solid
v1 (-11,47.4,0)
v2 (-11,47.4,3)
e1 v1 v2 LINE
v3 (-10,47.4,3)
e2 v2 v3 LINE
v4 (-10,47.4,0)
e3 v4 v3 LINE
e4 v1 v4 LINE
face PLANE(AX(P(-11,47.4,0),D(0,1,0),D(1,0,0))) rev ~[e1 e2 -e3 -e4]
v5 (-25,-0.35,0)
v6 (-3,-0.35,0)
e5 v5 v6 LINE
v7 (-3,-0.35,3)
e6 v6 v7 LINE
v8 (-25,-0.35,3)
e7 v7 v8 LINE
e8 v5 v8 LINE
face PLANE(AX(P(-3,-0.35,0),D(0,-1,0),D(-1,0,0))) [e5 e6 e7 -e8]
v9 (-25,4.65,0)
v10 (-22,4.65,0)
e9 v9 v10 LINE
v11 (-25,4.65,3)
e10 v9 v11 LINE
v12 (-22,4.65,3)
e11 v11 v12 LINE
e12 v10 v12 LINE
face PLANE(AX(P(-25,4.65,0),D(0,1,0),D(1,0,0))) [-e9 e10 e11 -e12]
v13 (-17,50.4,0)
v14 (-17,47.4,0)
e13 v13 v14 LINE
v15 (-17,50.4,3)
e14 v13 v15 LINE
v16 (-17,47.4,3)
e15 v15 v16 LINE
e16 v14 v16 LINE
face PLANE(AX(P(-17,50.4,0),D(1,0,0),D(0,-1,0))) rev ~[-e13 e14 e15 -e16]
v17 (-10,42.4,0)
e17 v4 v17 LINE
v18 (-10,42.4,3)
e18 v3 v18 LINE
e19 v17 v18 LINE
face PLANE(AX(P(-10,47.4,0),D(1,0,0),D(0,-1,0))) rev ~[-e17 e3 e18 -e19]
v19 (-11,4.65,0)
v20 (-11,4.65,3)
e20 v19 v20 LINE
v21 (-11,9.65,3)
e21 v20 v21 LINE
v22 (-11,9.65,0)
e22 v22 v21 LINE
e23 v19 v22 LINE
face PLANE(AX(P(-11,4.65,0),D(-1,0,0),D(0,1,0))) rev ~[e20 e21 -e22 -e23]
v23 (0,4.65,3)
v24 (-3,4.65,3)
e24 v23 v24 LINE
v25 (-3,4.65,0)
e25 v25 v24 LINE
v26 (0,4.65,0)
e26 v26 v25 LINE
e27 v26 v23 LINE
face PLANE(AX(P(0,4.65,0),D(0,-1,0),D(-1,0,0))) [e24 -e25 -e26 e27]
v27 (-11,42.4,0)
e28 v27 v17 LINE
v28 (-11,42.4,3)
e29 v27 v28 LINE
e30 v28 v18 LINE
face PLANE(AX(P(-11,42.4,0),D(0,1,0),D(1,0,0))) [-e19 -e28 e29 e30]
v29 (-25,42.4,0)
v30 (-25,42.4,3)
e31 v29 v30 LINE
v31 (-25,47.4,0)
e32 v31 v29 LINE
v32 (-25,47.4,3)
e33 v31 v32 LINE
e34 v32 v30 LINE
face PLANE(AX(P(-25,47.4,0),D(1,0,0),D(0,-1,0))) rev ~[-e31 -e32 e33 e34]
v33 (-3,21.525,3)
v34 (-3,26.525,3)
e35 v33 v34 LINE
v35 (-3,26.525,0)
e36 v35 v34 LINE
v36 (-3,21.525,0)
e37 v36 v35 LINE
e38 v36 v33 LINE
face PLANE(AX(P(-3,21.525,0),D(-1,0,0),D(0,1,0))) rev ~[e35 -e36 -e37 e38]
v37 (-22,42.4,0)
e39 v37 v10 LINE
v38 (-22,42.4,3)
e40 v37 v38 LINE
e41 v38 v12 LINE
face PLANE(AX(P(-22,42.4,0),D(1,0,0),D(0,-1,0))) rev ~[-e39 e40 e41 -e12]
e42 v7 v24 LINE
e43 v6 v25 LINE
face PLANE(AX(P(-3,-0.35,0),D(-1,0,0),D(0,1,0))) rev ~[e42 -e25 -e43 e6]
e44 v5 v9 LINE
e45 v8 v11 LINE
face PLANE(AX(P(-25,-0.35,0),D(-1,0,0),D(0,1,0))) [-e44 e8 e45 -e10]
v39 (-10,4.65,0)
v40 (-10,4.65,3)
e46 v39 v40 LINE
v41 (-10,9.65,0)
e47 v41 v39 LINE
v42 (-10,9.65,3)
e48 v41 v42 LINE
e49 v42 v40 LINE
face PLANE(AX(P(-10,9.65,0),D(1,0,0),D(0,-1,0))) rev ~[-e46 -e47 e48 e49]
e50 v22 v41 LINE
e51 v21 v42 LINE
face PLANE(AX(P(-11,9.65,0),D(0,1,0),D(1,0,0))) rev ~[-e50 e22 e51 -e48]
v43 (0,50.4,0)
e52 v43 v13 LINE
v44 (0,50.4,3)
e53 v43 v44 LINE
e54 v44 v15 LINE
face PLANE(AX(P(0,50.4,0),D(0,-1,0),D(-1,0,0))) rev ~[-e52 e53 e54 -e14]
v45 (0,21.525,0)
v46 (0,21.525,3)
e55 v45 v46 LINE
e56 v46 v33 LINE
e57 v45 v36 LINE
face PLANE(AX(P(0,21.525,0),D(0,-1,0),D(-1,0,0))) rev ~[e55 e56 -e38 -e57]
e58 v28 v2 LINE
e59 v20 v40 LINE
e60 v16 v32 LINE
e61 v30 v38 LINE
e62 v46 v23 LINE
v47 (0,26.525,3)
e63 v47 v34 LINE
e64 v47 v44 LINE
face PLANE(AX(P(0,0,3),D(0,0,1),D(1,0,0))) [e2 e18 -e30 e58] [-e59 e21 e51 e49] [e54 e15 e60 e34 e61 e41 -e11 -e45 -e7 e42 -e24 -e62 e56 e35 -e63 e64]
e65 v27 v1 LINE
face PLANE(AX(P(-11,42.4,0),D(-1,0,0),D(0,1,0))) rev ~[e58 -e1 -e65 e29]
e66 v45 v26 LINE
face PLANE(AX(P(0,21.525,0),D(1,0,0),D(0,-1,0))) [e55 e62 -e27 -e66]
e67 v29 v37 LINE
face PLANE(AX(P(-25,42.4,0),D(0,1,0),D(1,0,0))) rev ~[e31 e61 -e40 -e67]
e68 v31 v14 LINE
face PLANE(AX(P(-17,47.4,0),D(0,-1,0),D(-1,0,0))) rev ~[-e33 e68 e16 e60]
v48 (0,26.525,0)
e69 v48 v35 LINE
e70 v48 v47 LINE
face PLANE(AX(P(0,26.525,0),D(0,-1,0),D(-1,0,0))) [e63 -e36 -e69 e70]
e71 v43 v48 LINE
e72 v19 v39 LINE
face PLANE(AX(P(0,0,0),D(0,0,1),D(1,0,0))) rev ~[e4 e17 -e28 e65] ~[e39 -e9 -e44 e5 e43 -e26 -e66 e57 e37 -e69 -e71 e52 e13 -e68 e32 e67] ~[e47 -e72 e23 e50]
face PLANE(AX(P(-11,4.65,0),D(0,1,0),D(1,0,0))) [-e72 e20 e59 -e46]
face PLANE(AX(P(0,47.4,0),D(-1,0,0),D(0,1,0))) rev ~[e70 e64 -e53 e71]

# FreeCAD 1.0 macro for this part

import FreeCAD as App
import Part
import Sketcher

V = App.Vector
Q = App.Units.Quantity


def add_polygon(sketch, points):
    """Adds a closed chain of lines whose ends are joined by coincident constraints."""
    first, n = sketch.GeometryCount, len(points)
    for a, b in zip(points, points[1:] + points[:1]):
        sketch.addGeometry(Part.LineSegment(App.Vector(*a, 0), App.Vector(*b, 0)), False)
    for i in range(n):
        sketch.addConstraint(Sketcher.Constraint("Coincident", first + i, 2, first + (i + 1) % n, 1))

doc = App.newDocument("Part")
body = doc.addObject("PartDesign::Body", "Body")

sketch1 = body.newObject("Sketcher::SketchObject", "Sketch")
sketch1.AttachmentSupport = (doc.getObject("XY_Plane"), [""])
sketch1.MapMode = "FlatFace"
add_polygon(sketch1, [(-3, -0.3), (-3, 4.7), (0, 4.7), (0, 21.5), (-3, 21.5), (-3, 26.5), (0, 26.5), (0, 50.4), (-17, 50.4), (-17, 47.4), (-25, 47.4), (-25, 42.4), (-22, 42.4), (-22, 4.7), (-25, 4.7), (-25, -0.3)])
add_polygon(sketch1, [(-11, 9.7), (-10, 9.7), (-10, 4.7), (-11, 4.7)])
add_polygon(sketch1, [(-11, 47.4), (-10, 47.4), (-10, 42.4), (-11, 42.4)])
sketch1.addConstraint([
    Sketcher.Constraint("Vertical", 0),
    Sketcher.Constraint("Horizontal", 1),
    Sketcher.Constraint("Vertical", 2),
    Sketcher.Constraint("Horizontal", 3),
    Sketcher.Constraint("Vertical", 4),
    Sketcher.Constraint("Horizontal", 5),
    Sketcher.Constraint("Vertical", 6),
    Sketcher.Constraint("Horizontal", 7),
    Sketcher.Constraint("Vertical", 8),
    Sketcher.Constraint("Horizontal", 9),
    Sketcher.Constraint("Vertical", 10),
    Sketcher.Constraint("Horizontal", 11),
    Sketcher.Constraint("Vertical", 12),
    Sketcher.Constraint("Horizontal", 13),
    Sketcher.Constraint("Vertical", 14),
    Sketcher.Constraint("Horizontal", 15),
    Sketcher.Constraint("Horizontal", 16),
    Sketcher.Constraint("Vertical", 17),
    Sketcher.Constraint("Horizontal", 18),
    Sketcher.Constraint("Vertical", 19),
    Sketcher.Constraint("Horizontal", 20),
    Sketcher.Constraint("Vertical", 21),
    Sketcher.Constraint("Horizontal", 22),
    Sketcher.Constraint("Vertical", 23),
    Sketcher.Constraint("PointOnObject", 1, 2, -2),
    Sketcher.Constraint("PointOnObject", 5, 2, -2),
    Sketcher.Constraint("Horizontal", 1, 2, 12, 2),
    Sketcher.Constraint("Horizontal", 13, 2, 17, 2),
    Sketcher.Constraint("Horizontal", 9, 2, 20, 2),
    Sketcher.Constraint("Horizontal", 11, 2, 21, 2),
    Sketcher.Constraint("Vertical", 0, 2, 3, 2),
    Sketcher.Constraint("Vertical", 10, 2, 13, 2),
    Sketcher.Constraint("Vertical", 17, 2, 20, 2),
    Sketcher.Constraint("Vertical", 19, 2, 22, 2),
    Sketcher.Constraint("Equal", 5, 11),
    Sketcher.Constraint("Equal", 0, 4),
    Sketcher.Constraint("Equal", 13, 8),
    Sketcher.Constraint("Equal", 4, 10),
    Sketcher.Constraint("Equal", 14, 17),
    Sketcher.Constraint("DistanceX", 1, 1, 1, 2, Q("3 mm")),
    Sketcher.Constraint("DistanceX", 7, 2, 7, 1, Q("17 mm")),
    Sketcher.Constraint("DistanceX", 9, 2, 9, 1, Q("8 mm")),
    Sketcher.Constraint("DistanceX", 16, 1, 16, 2, Q("1 mm")),
    Sketcher.Constraint("DistanceY", 0, 1, 0, 2, Q("5 mm")),
    Sketcher.Constraint("DistanceX", 16, 2, -1, 1, Q("10 mm")),
    Sketcher.Constraint("DistanceY", 12, 2, 12, 1, Q("37.75 mm")),
    Sketcher.Constraint("DistanceY", -1, 1, 6, 2, Q("50.4 mm")),
    Sketcher.Constraint("DistanceY", 2, 1, 2, 2, Q("16.875 mm")),
])
pad1 = body.newObject("PartDesign::Pad", "Pad")
pad1.Profile = sketch1
pad1.Length = 3

doc.recompute()
